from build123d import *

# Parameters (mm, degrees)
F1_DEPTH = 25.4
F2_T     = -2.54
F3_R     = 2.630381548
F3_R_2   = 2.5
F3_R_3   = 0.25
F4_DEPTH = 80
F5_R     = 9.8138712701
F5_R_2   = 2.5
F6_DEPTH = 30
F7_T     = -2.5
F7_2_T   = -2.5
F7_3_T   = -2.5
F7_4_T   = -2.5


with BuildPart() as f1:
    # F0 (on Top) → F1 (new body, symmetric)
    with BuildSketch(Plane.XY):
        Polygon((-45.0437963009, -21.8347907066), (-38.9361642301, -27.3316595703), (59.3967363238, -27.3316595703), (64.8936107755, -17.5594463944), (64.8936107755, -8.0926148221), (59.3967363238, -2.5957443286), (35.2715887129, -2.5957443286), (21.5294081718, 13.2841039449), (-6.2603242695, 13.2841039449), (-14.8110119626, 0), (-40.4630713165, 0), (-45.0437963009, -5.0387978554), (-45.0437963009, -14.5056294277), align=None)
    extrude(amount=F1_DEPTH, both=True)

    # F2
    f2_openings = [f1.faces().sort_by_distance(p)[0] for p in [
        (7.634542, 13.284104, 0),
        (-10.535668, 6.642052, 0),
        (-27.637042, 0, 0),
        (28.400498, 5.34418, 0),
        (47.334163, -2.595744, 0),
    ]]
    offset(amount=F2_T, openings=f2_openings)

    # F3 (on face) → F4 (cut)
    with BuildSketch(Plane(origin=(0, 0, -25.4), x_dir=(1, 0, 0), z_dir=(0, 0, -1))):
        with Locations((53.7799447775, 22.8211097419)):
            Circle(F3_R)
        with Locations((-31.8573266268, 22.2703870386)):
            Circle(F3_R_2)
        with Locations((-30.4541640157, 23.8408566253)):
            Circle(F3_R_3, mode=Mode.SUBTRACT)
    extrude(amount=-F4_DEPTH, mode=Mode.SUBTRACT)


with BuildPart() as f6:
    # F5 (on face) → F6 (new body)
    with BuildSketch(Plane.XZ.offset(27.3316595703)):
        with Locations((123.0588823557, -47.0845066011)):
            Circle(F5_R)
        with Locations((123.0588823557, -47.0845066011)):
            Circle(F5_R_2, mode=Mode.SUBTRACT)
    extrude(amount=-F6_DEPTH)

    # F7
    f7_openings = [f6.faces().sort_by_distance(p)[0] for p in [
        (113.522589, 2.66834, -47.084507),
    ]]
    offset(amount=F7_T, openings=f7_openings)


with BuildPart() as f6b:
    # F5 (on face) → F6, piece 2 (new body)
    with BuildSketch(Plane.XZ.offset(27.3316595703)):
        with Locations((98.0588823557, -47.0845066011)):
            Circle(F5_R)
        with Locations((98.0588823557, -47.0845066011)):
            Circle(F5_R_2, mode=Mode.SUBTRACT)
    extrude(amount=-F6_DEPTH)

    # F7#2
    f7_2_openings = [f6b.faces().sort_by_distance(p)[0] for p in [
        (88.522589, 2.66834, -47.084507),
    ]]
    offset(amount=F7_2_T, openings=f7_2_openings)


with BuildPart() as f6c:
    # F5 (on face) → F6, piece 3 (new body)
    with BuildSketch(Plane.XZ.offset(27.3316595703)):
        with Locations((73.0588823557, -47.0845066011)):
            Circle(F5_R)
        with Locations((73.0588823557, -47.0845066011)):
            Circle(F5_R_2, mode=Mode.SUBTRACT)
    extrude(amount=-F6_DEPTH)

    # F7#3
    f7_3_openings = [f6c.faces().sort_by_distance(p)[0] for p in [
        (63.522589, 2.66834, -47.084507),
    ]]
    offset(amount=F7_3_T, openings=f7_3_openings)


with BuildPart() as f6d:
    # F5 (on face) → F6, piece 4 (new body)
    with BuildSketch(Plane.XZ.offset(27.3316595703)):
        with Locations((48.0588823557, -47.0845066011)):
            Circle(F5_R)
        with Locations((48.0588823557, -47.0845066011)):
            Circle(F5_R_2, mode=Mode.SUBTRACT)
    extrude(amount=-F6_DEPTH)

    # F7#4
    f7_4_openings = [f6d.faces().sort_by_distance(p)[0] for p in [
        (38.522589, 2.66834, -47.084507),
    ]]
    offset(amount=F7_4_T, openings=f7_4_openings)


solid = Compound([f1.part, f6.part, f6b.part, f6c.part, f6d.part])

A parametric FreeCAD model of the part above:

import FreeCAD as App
import Part
import Sketcher
from FreeCAD import Vector
Q = App.Units.Quantity


def faces_at(feature, points):
    """Names of the faces that lie closest to the given points."""
    faces = feature.Shape.Faces
    near = lambda p: min(range(len(faces)), key=lambda i: faces[i].distToShape(Part.Vertex(*p))[0])
    return sorted({f"Face{near(p) + 1}" for p in points})


def add_polygon(sketch, points):
    """Adds a closed chain of lines whose ends are joined by coincident constraints."""
    first, n = sketch.GeometryCount, len(points)
    for a, b in zip(points, points[1:] + points[:1]):
        sketch.addGeometry(Part.LineSegment(App.Vector(*a, 0), App.Vector(*b, 0)), False)
    for i in range(n):
        sketch.addConstraint(Sketcher.Constraint("Coincident", first + i, 2, first + (i + 1) % n, 1))

doc = App.newDocument("Part")
body = doc.addObject("PartDesign::Body", "Body")
body.AllowCompound = True

sketch1 = doc.addObject("Sketcher::SketchObject", "Sketch")
body.addObject(sketch1)
sketch1.AttachmentSupport = (doc.XY_Plane, [""])
sketch1.MapMode = "FlatFace"
add_polygon(sketch1, [(-45, -22), (-39, -27), (59, -27), (65, -18), (65, -8), (59, -3), (35, -3), (22, 13), (-6, 13), (-15, 0), (-40, 0), (-45, -5)])
sketch1.addConstraint([
    Sketcher.Constraint("Horizontal", 1),
    Sketcher.Constraint("Vertical", 3),
    Sketcher.Constraint("Horizontal", 5),
    Sketcher.Constraint("Horizontal", 7),
    Sketcher.Constraint("Horizontal", 9),
    Sketcher.Constraint("Vertical", 11),
    Sketcher.Constraint("PointOnObject", 8, 2, -1),
    Sketcher.Constraint("Vertical", 1, 2, 4, 2),
    Sketcher.Constraint("DistanceX", 1, 1, 1, 2, Q("98.332901 mm")),
    Sketcher.Constraint("DistanceX", 9, 2, 9, 1, Q("25.652059 mm")),
    Sketcher.Constraint("DistanceY", 3, 1, 3, 2, Q("9.466832 mm")),
    Sketcher.Constraint("DistanceX", 8, 2, 5, 2, Q("50.082601 mm")),
    Sketcher.Constraint("DistanceY", 10, 2, 7, 2, Q("18.322902 mm")),
    Sketcher.Constraint("Distance", 0, Q("8.216979 mm")),
    Sketcher.Constraint("Distance", 4, Q("7.773752 mm")),
    Sketcher.Constraint("DistanceX", 5, 2, 5, 1, Q("24.125148 mm")),
    Sketcher.Constraint("DistanceX", 7, 2, 7, 1, Q("27.789732 mm")),
    Sketcher.Constraint("DistanceY", 11, 2, 11, 1, Q("16.795993 mm")),
    Sketcher.Constraint("DistanceY", 0, 2, -1, 1, Q("27.33166 mm")),
    Sketcher.Constraint("DistanceX", -1, 1, 2, 2, Q("64.893611 mm")),
    Sketcher.Constraint("DistanceX", -1, 1, 5, 2, Q("35.271589 mm")),
    Sketcher.Constraint("DistanceX", -1, 1, 6, 2, Q("21.529408 mm")),
    Sketcher.Constraint("DistanceY", 11, 2, -1, 1, Q("21.834791 mm")),
    Sketcher.Constraint("DistanceY", 5, 2, 6, 2, Q("15.879848 mm")),
])
pad1 = doc.addObject("PartDesign::Pad", "Pad")
body.addObject(pad1)
pad1.Profile = sketch1
pad1.Length = 50.8
pad1.Midplane = True
doc.recompute()

thickness = doc.addObject("PartDesign::Thickness", "Thickness")
body.addObject(thickness)
thickness.Base = (pad1, faces_at(pad1, [
    (7.635, 13.284, 0),
    (-10.536, 6.642, 0),
    (-27.637, 0, 0),
    (28.4, 5.344, 0),
    (47.334, -2.596, 0),
]))
thickness.Value = 2.54
thickness.Reversed = True
thickness.Join = "Arc"

sketch2 = doc.addObject("Sketcher::SketchObject", "Sketch001")
body.addObject(sketch2)
sketch2.AttachmentSupport = (doc.XY_Plane, [""])
sketch2.MapMode = "FlatFace"
sketch2.AttachmentOffset = App.Placement(Vector(0, 0, -25.4), App.Rotation())
sketch2.addGeometry([
    Part.Circle(Vector(53.78, -22.82, 0), Vector(0, 0, 1), 2.63),
    Part.Circle(Vector(-31.86, -22.27, 0), Vector(0, 0, 1), 2.5),
    Part.Circle(Vector(-30.45, -23.84, 0), Vector(0, 0, 1), 0.25),
], False)
sketch2.addConstraint([
    Sketcher.Constraint("Diameter", 1, Q("5 mm")),
    Sketcher.Constraint("Diameter", 2, Q("0.5 mm")),
    Sketcher.Constraint("Diameter", 0, Q("5.260763 mm")),
    Sketcher.Constraint("DistanceY", 0, 3, -1, 1, Q("22.82111 mm")),
    Sketcher.Constraint("DistanceX", 1, 3, 0, 3, Q("85.637271 mm")),
    Sketcher.Constraint("DistanceY", 2, 3, 1, 3, Q("1.57047 mm")),
    Sketcher.Constraint("DistanceX", 2, 3, 0, 3, Q("84.234109 mm")),
    Sketcher.Constraint("DistanceX", -1, 1, 0, 3, Q("53.779945 mm")),
    Sketcher.Constraint("DistanceY", 1, 3, -1, 1, Q("22.270387 mm")),
])
pocket1 = doc.addObject("PartDesign::Pocket", "Pocket")
body.addObject(pocket1)
pocket1.Profile = sketch2
pocket1.Length = 80
pocket1.Reversed = True
body2 = doc.addObject("PartDesign::Body", "Body001")

sketch3 = doc.addObject("Sketcher::SketchObject", "Sketch002")
body2.addObject(sketch3)
sketch3.AttachmentSupport = (doc.getObject("XZ_Plane001"), [""])
sketch3.MapMode = "FlatFace"
sketch3.AttachmentOffset = App.Placement(Vector(0, 0, 27.33166), App.Rotation())
sketch3.addGeometry([
    Part.Circle(Vector(123.1, -47.1, 0), Vector(0, 0, 1), 9.8),
    Part.Circle(Vector(123.1, -47.1, 0), Vector(0, 0, 1), 2.5),
], False)
sketch3.addConstraint([
    Sketcher.Constraint("Coincident", 1, 3, 0, 3),
    Sketcher.Constraint("Diameter", 1, Q("5 mm")),
    Sketcher.Constraint("Diameter", 0, Q("19.627743 mm")),
    Sketcher.Constraint("DistanceX", -1, 1, 0, 3, Q("123.058882 mm")),
    Sketcher.Constraint("DistanceY", 0, 3, -1, 1, Q("47.084507 mm")),
])
pad2 = doc.addObject("PartDesign::Pad", "Pad001")
body2.addObject(pad2)
pad2.Profile = sketch3
pad2.Length = 30
pad2.Reversed = True
doc.recompute()

thickness2 = doc.addObject("PartDesign::Thickness", "Thickness001")
body2.addObject(thickness2)
thickness2.Base = (pad2, faces_at(pad2, [(119.133, 2.668, -51.01)]))
thickness2.Value = 2.5
thickness2.Reversed = True
thickness2.Join = "Arc"
body3 = doc.addObject("PartDesign::Body", "Body002")

sketch4 = doc.addObject("Sketcher::SketchObject", "Sketch003")
body3.addObject(sketch4)
sketch4.AttachmentSupport = (doc.getObject("XZ_Plane002"), [""])
sketch4.MapMode = "FlatFace"
sketch4.AttachmentOffset = App.Placement(Vector(0, 0, 27.33166), App.Rotation())
sketch4.addGeometry([
    Part.Circle(Vector(98.1, -47.1, 0), Vector(0, 0, 1), 9.8),
    Part.Circle(Vector(98.1, -47.1, 0), Vector(0, 0, 1), 2.5),
], False)
sketch4.addConstraint([
    Sketcher.Constraint("Coincident", 1, 3, 0, 3),
    Sketcher.Constraint("Diameter", 1, Q("5 mm")),
    Sketcher.Constraint("Diameter", 0, Q("19.627743 mm")),
    Sketcher.Constraint("DistanceX", -1, 1, 0, 3, Q("98.058882 mm")),
    Sketcher.Constraint("DistanceY", 0, 3, -1, 1, Q("47.084507 mm")),
])
pad3 = doc.addObject("PartDesign::Pad", "Pad002")
body3.addObject(pad3)
pad3.Profile = sketch4
pad3.Length = 30
pad3.Reversed = True
doc.recompute()

thickness3 = doc.addObject("PartDesign::Thickness", "Thickness002")
body3.addObject(thickness3)
thickness3.Base = (pad3, faces_at(pad3, [(94.133, 2.668, -51.01)]))
thickness3.Value = 2.5
thickness3.Reversed = True
thickness3.Join = "Arc"
body4 = doc.addObject("PartDesign::Body", "Body003")

sketch5 = doc.addObject("Sketcher::SketchObject", "Sketch004")
body4.addObject(sketch5)
sketch5.AttachmentSupport = (doc.getObject("XZ_Plane003"), [""])
sketch5.MapMode = "FlatFace"
sketch5.AttachmentOffset = App.Placement(Vector(0, 0, 27.33166), App.Rotation())
sketch5.addGeometry([
    Part.Circle(Vector(73.1, -47.1, 0), Vector(0, 0, 1), 9.8),
    Part.Circle(Vector(73.1, -47.1, 0), Vector(0, 0, 1), 2.5),
], False)
sketch5.addConstraint([
    Sketcher.Constraint("Coincident", 1, 3, 0, 3),
    Sketcher.Constraint("Diameter", 1, Q("5 mm")),
    Sketcher.Constraint("Diameter", 0, Q("19.627743 mm")),
    Sketcher.Constraint("DistanceX", -1, 1, 0, 3, Q("73.058882 mm")),
    Sketcher.Constraint("DistanceY", 0, 3, -1, 1, Q("47.084507 mm")),
])
pad4 = doc.addObject("PartDesign::Pad", "Pad003")
body4.addObject(pad4)
pad4.Profile = sketch5
pad4.Length = 30
pad4.Reversed = True
doc.recompute()

thickness4 = doc.addObject("PartDesign::Thickness", "Thickness003")
body4.addObject(thickness4)
thickness4.Base = (pad4, faces_at(pad4, [(69.133, 2.668, -51.01)]))
thickness4.Value = 2.5
thickness4.Reversed = True
thickness4.Join = "Arc"
body5 = doc.addObject("PartDesign::Body", "Body004")

sketch6 = doc.addObject("Sketcher::SketchObject", "Sketch005")
body5.addObject(sketch6)
sketch6.AttachmentSupport = (doc.getObject("XZ_Plane004"), [""])
sketch6.MapMode = "FlatFace"
sketch6.AttachmentOffset = App.Placement(Vector(0, 0, 27.33166), App.Rotation())
sketch6.addGeometry([
    Part.Circle(Vector(48.1, -47.1, 0), Vector(0, 0, 1), 9.8),
    Part.Circle(Vector(48.1, -47.1, 0), Vector(0, 0, 1), 2.5),
], False)
sketch6.addConstraint([
    Sketcher.Constraint("Coincident", 1, 3, 0, 3),
    Sketcher.Constraint("Diameter", 1, Q("5 mm")),
    Sketcher.Constraint("Diameter", 0, Q("19.627743 mm")),
    Sketcher.Constraint("DistanceX", -1, 1, 0, 3, Q("48.058882 mm")),
    Sketcher.Constraint("DistanceY", 0, 3, -1, 1, Q("47.084507 mm")),
])
pad5 = doc.addObject("PartDesign::Pad", "Pad004")
body5.addObject(pad5)
pad5.Profile = sketch6
pad5.Length = 30
pad5.Reversed = True
doc.recompute()

thickness5 = doc.addObject("PartDesign::Thickness", "Thickness004")
body5.addObject(thickness5)
thickness5.Base = (pad5, faces_at(pad5, [(44.133, 2.668, -51.01)]))
thickness5.Value = 2.5
thickness5.Reversed = True
thickness5.Join = "Arc"

doc.recompute()
